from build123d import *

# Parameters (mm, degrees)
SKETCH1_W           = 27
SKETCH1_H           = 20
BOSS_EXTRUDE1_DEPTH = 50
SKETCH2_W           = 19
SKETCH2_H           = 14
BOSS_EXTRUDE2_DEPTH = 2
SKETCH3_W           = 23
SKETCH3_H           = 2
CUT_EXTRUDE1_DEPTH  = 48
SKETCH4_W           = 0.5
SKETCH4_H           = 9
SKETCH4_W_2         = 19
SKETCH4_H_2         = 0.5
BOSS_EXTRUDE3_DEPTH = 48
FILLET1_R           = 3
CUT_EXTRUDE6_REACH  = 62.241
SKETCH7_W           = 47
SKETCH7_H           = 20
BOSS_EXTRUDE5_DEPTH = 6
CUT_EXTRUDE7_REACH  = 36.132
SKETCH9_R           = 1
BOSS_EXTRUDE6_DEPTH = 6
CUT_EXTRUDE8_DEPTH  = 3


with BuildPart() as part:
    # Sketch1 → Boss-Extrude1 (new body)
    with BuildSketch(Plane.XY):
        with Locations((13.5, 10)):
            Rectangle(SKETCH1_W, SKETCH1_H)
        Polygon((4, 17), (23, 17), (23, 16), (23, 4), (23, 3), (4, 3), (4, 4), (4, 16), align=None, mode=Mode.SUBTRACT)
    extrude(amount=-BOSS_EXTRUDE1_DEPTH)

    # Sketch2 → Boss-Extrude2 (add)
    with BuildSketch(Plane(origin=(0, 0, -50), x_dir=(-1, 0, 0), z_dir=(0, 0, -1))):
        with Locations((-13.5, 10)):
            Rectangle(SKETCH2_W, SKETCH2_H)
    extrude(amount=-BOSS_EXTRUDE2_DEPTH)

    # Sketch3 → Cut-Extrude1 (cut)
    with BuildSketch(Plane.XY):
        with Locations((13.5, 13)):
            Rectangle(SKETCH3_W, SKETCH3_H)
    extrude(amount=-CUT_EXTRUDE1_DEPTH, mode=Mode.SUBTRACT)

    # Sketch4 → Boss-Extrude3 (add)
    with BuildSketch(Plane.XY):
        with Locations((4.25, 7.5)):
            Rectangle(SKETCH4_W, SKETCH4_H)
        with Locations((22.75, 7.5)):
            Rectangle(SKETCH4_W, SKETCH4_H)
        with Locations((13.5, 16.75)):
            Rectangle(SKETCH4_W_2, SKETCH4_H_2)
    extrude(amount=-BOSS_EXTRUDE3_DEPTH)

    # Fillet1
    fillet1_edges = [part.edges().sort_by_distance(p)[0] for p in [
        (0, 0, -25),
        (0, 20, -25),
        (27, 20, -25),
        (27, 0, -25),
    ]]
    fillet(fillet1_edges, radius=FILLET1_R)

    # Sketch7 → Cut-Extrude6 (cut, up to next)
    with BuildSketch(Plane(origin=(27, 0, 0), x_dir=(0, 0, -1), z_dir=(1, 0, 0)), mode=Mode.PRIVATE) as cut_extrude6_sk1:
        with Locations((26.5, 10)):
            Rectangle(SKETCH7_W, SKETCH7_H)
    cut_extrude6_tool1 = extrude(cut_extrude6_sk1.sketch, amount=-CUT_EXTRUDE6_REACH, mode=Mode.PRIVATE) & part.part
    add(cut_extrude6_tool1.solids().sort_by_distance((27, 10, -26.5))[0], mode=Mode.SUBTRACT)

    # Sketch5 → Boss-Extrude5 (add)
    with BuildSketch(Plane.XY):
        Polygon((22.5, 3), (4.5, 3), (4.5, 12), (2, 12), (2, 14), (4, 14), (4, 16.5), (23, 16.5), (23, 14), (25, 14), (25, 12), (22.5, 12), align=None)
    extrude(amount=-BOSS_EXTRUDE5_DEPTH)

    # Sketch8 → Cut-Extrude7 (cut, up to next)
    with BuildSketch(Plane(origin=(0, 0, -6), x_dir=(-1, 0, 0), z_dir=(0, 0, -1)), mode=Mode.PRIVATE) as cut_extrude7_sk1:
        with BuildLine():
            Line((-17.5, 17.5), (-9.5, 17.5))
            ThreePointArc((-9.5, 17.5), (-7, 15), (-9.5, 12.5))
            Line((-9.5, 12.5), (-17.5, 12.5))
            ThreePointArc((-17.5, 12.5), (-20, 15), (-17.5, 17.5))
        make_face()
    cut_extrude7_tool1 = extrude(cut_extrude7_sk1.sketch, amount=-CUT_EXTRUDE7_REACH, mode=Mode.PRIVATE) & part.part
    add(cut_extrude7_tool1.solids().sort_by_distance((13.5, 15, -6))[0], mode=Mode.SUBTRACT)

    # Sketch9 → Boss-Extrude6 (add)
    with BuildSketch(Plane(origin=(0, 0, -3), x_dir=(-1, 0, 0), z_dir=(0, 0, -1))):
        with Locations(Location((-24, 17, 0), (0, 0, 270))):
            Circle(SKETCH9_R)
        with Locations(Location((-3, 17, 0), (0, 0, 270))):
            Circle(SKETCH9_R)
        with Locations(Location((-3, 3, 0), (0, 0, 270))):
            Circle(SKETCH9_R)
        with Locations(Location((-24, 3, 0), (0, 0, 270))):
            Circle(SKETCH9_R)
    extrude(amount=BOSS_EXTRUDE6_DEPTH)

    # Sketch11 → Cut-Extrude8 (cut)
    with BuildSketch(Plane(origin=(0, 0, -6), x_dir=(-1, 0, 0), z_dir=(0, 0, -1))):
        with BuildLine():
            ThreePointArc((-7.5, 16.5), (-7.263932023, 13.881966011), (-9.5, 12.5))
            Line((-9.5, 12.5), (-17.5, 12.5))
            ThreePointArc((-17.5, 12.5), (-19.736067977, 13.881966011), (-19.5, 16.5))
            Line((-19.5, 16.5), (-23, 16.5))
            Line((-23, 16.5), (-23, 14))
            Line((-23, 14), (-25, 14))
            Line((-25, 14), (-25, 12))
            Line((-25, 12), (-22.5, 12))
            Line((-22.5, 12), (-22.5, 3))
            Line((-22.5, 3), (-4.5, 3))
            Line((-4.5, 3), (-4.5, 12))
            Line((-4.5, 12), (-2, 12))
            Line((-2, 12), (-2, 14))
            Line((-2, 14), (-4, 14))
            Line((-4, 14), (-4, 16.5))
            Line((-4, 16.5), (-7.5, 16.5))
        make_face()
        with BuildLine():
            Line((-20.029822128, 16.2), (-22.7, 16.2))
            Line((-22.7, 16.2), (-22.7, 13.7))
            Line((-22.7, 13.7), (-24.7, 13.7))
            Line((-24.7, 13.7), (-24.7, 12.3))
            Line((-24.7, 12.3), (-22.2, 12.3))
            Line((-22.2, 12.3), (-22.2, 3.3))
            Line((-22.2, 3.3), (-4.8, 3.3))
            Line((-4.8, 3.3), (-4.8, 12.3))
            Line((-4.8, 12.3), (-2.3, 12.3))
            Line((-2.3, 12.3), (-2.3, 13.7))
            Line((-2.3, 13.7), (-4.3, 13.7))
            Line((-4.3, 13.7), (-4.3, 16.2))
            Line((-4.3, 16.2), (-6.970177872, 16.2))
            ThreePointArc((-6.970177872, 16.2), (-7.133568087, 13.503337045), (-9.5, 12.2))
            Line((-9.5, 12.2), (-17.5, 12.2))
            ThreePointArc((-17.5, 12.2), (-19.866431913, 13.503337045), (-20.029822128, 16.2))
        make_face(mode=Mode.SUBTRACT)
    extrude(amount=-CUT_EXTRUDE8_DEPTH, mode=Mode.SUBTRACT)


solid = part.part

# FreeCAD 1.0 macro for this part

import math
import FreeCAD as App
import Part
import Sketcher

V = App.Vector
Q = App.Units.Quantity


def edges_at(feature, points):
    """Names of the edges that pass closest to the given points."""
    edges = feature.Shape.Edges
    near = lambda p: min(range(len(edges)), key=lambda i: edges[i].distToShape(Part.Vertex(*p))[0])
    return sorted({f"Edge{near(p) + 1}" for p in points})


def add_polygon(sketch, points):
    """Adds a closed chain of lines whose ends are joined by coincident constraints."""
    first, n = sketch.GeometryCount, len(points)
    for a, b in zip(points, points[1:] + points[:1]):
        sketch.addGeometry(Part.LineSegment(App.Vector(*a, 0), App.Vector(*b, 0)), False)
    for i in range(n):
        sketch.addConstraint(Sketcher.Constraint("Coincident", first + i, 2, first + (i + 1) % n, 1))

doc = App.newDocument("Part")
body = doc.addObject("PartDesign::Body", "Body")

# Sketch on XY plane
sketch1 = body.newObject("Sketcher::SketchObject", "Sketch")
sketch1.AttachmentSupport = (doc.getObject("XY_Plane"), [""])
sketch1.MapMode = "FlatFace"
add_polygon(sketch1, [(0, 20), (0, 0), (27, 0), (27, 20)])  # lines 0-3
add_polygon(sketch1, [(4, 3), (4, 17), (23, 17), (23, 3)])  # lines 4-7
sketch1.addConstraint([
    Sketcher.Constraint("Vertical", 0),
    Sketcher.Constraint("Horizontal", 1),
    Sketcher.Constraint("Vertical", 2),
    Sketcher.Constraint("Horizontal", 3),
    Sketcher.Constraint("Vertical", 4),
    Sketcher.Constraint("Horizontal", 5),
    Sketcher.Constraint("Vertical", 6),
    Sketcher.Constraint("Horizontal", 7),
    Sketcher.Constraint("Coincident", 0, 2, -1, 1),
    Sketcher.Constraint("DistanceX", 1, 1, 1, 2, Q("27 mm")),
    Sketcher.Constraint("DistanceX", 5, 1, 5, 2, Q("19 mm")),
    Sketcher.Constraint("DistanceY", 0, 2, 0, 1, Q("20 mm")),
    Sketcher.Constraint("DistanceY", 4, 1, 4, 2, Q("14 mm")),
    Sketcher.Constraint("DistanceX", -1, 1, 4, 2, Q("4 mm")),
    Sketcher.Constraint("DistanceY", -1, 1, 4, 2, Q("17 mm")),
])
pad1 = body.newObject("PartDesign::Pad", "Pad")
pad1.Profile = sketch1
pad1.Length = 50
pad1.Reversed = True

# Sketch on XY plane
sketch2 = body.newObject("Sketcher::SketchObject", "Sketch001")
sketch2.AttachmentSupport = (doc.getObject("XY_Plane"), [""])
sketch2.MapMode = "FlatFace"
sketch2.AttachmentOffset = App.Placement(V(0, 0, -50), App.Rotation())
add_polygon(sketch2, [(23, 17), (23, 3), (4, 3), (4, 17)])  # lines 0-3
sketch2.addConstraint([
    Sketcher.Constraint("Vertical", 0),
    Sketcher.Constraint("Horizontal", 1),
    Sketcher.Constraint("Vertical", 2),
    Sketcher.Constraint("Horizontal", 3),
    Sketcher.Constraint("DistanceX", 1, 2, 1, 1, Q("19 mm")),
    Sketcher.Constraint("DistanceY", 0, 2, 0, 1, Q("14 mm")),
    Sketcher.Constraint("DistanceX", -1, 1, 0, 2, Q("23 mm")),
    Sketcher.Constraint("DistanceY", -1, 1, 0, 2, Q("3 mm")),
])
pad2 = body.newObject("PartDesign::Pad", "Pad001")
pad2.Profile = sketch2
pad2.Length = 2

# Sketch on XY plane
sketch3 = body.newObject("Sketcher::SketchObject", "Sketch002")
sketch3.AttachmentSupport = (doc.getObject("XY_Plane"), [""])
sketch3.MapMode = "FlatFace"
add_polygon(sketch3, [(2, 14), (2, 12), (25, 12), (25, 14)])  # lines 0-3
sketch3.addConstraint([
    Sketcher.Constraint("Vertical", 0),
    Sketcher.Constraint("Horizontal", 1),
    Sketcher.Constraint("Vertical", 2),
    Sketcher.Constraint("Horizontal", 3),
    Sketcher.Constraint("DistanceX", 1, 1, 1, 2, Q("23 mm")),
    Sketcher.Constraint("DistanceY", 0, 2, 0, 1, Q("2 mm")),
    Sketcher.Constraint("DistanceX", -1, 1, 0, 2, Q("2 mm")),
    Sketcher.Constraint("DistanceY", -1, 1, 0, 2, Q("12 mm")),
])
pocket1 = body.newObject("PartDesign::Pocket", "Pocket")
pocket1.Profile = sketch3
pocket1.Length = 48

# Sketch on XY plane
sketch4 = body.newObject("Sketcher::SketchObject", "Sketch003")
sketch4.AttachmentSupport = (doc.getObject("XY_Plane"), [""])
sketch4.MapMode = "FlatFace"
add_polygon(sketch4, [(4, 12), (4, 3), (4.5, 3), (4.5, 12)])  # lines 0-3
add_polygon(sketch4, [(22.5, 12), (22.5, 3), (23, 3), (23, 12)])  # lines 4-7
add_polygon(sketch4, [(4, 17), (4, 16.5), (23, 16.5), (23, 17)])  # lines 8-11
sketch4.addConstraint([
    Sketcher.Constraint("Vertical", 0),
    Sketcher.Constraint("Horizontal", 1),
    Sketcher.Constraint("Vertical", 2),
    Sketcher.Constraint("Horizontal", 3),
    Sketcher.Constraint("Vertical", 4),
    Sketcher.Constraint("Horizontal", 5),
    Sketcher.Constraint("Vertical", 6),
    Sketcher.Constraint("Horizontal", 7),
    Sketcher.Constraint("Vertical", 8),
    Sketcher.Constraint("Horizontal", 9),
    Sketcher.Constraint("Vertical", 10),
    Sketcher.Constraint("Horizontal", 11),
    Sketcher.Constraint("Horizontal", 1, 2, 4, 2),
    Sketcher.Constraint("Horizontal", 3, 2, 6, 2),
    Sketcher.Constraint("Vertical", 3, 2, 8, 2),
    Sketcher.Constraint("Vertical", 6, 2, 9, 2),
    Sketcher.Constraint("Equal", 3, 5),
    Sketcher.Constraint("Equal", 7, 8),
    Sketcher.Constraint("DistanceX", 9, 1, 9, 2, Q("19 mm")),
    Sketcher.Constraint("DistanceY", 0, 2, 0, 1, Q("9 mm")),
    Sketcher.Constraint("DistanceX", 1, 1, 1, 2, Q("0.5 mm")),
    Sketcher.Constraint("DistanceX", -1, 1, 0, 2, Q("4 mm")),
    Sketcher.Constraint("DistanceY", -1, 1, 0, 2, Q("3 mm")),
    Sketcher.Constraint("DistanceY", -1, 1, 10, 2, Q("17 mm")),
])
pad3 = body.newObject("PartDesign::Pad", "Pad002")
pad3.Profile = sketch4
pad3.Length = 48
pad3.Reversed = True
doc.recompute()

fillet = body.newObject("PartDesign::Fillet", "Fillet")
fillet.Base = (pad3, edges_at(pad3, [
    (0, 0, -25),
    (0, 20, -25),
    (27, 20, -25),
    (27, 0, -25),
]))
fillet.Radius = 3

# Sketch on YZ plane
sketch5 = body.newObject("Sketcher::SketchObject", "Sketch004")
sketch5.AttachmentSupport = (doc.getObject("YZ_Plane"), [""])
sketch5.MapMode = "FlatFace"
sketch5.AttachmentOffset = App.Placement(V(0, 0, 27), App.Rotation())
add_polygon(sketch5, [(20, -3), (0, -3), (0, -50), (20, -50)])  # lines 0-3
sketch5.addConstraint([
    Sketcher.Constraint("Horizontal", 0),
    Sketcher.Constraint("Vertical", 1),
    Sketcher.Constraint("Horizontal", 2),
    Sketcher.Constraint("Vertical", 3),
    Sketcher.Constraint("PointOnObject", 0, 2, -2),
    Sketcher.Constraint("DistanceX", 0, 2, 0, 1, Q("20 mm")),
    Sketcher.Constraint("DistanceY", 1, 2, 1, 1, Q("47 mm")),
    Sketcher.Constraint("DistanceY", 0, 2, -1, 1, Q("3 mm")),
])
pocket2 = body.newObject("PartDesign::Pocket", "Pocket001")
pocket2.Profile = sketch5
pocket2.Length = 27

# Sketch on XY plane
sketch6 = body.newObject("Sketcher::SketchObject", "Sketch005")
sketch6.AttachmentSupport = (doc.getObject("XY_Plane"), [""])
sketch6.MapMode = "FlatFace"
add_polygon(sketch6, [(4.5, 3), (22.5, 3), (22.5, 12), (25, 12), (25, 14), (23, 14), (23, 16.5), (4, 16.5), (4, 14), (2, 14), (2, 12), (4.5, 12)])  # lines 0-11
sketch6.addConstraint([
    Sketcher.Constraint("Horizontal", 0),
    Sketcher.Constraint("Vertical", 1),
    Sketcher.Constraint("Horizontal", 2),
    Sketcher.Constraint("Vertical", 3),
    Sketcher.Constraint("Horizontal", 4),
    Sketcher.Constraint("Vertical", 5),
    Sketcher.Constraint("Horizontal", 6),
    Sketcher.Constraint("Vertical", 7),
    Sketcher.Constraint("Horizontal", 8),
    Sketcher.Constraint("Vertical", 9),
    Sketcher.Constraint("Horizontal", 10),
    Sketcher.Constraint("Vertical", 11),
    Sketcher.Constraint("Horizontal", 4, 2, 7, 2),
    Sketcher.Constraint("Horizontal", 2, 2, 9, 2),
    Sketcher.Constraint("Equal", 4, 8),
    Sketcher.Constraint("Equal", 2, 10),
    Sketcher.Constraint("Equal", 8, 3),
    Sketcher.Constraint("Equal", 10, 5),
    Sketcher.Constraint("DistanceX", 0, 1, 0, 2, Q("18 mm")),
    Sketcher.Constraint("DistanceX", 4, 2, 4, 1, Q("2 mm")),
    Sketcher.Constraint("DistanceX", 6, 2, 6, 1, Q("19 mm")),
    Sketcher.Constraint("DistanceY", 1, 1, 1, 2, Q("9 mm")),
    Sketcher.Constraint("DistanceY", -1, 1, 0, 2, Q("3 mm")),
    Sketcher.Constraint("DistanceX", -1, 1, 2, 2, Q("25 mm")),
])
pad4 = body.newObject("PartDesign::Pad", "Pad003")
pad4.Profile = sketch6
pad4.Length = 6
pad4.Reversed = True

# Sketch on XY plane
sketch7 = body.newObject("Sketcher::SketchObject", "Sketch006")
sketch7.AttachmentSupport = (doc.getObject("XY_Plane"), [""])
sketch7.MapMode = "FlatFace"
sketch7.AttachmentOffset = App.Placement(V(0, 0, -6), App.Rotation())
sketch7.addGeometry([
    Part.LineSegment(V(9.5, 17.5, 0), V(17.5, 17.5, 0)),
    Part.ArcOfCircle(Part.Circle(V(17.5, 15, 0), V(0, 0, 1), 2.5), math.radians(-90), math.radians(90)),
    Part.LineSegment(V(17.5, 12.5, 0), V(9.5, 12.5, 0)),
    Part.ArcOfCircle(Part.Circle(V(9.5, 15, 0), V(0, 0, 1), 2.5), math.radians(90), math.radians(270)),
], False)
sketch7.addConstraint([
    Sketcher.Constraint("Tangent", 0, 2, 1, 2),
    Sketcher.Constraint("Tangent", 1, 1, 2, 1),
    Sketcher.Constraint("Tangent", 2, 2, 3, 2),
    Sketcher.Constraint("Tangent", 3, 1, 0, 1),
    Sketcher.Constraint("Horizontal", 0),
    Sketcher.Constraint("Horizontal", 2),
    Sketcher.Constraint("Radius", 1, Q("2.5 mm")),
    Sketcher.Constraint("DistanceX", 0, 1, 0, 2, Q("8 mm")),
    Sketcher.Constraint("DistanceY", -1, 1, 1, 3, Q("15 mm")),
    Sketcher.Constraint("DistanceX", -1, 1, 1, 3, Q("17.5 mm")),
])
pocket3 = body.newObject("PartDesign::Pocket", "Pocket002")
pocket3.Profile = sketch7
pocket3.Type = "UpToFirst"
pocket3.Reversed = True

# Sketch on XY plane
sketch8 = body.newObject("Sketcher::SketchObject", "Sketch007")
sketch8.AttachmentSupport = (doc.getObject("XY_Plane"), [""])
sketch8.MapMode = "FlatFace"
sketch8.AttachmentOffset = App.Placement(V(0, 0, -3), App.Rotation())
sketch8.addGeometry([
    Part.Circle(V(24, 17, 0), V(0, 0, 1), 1),
    Part.Circle(V(3, 17, 0), V(0, 0, 1), 1),
    Part.Circle(V(3, 3, 0), V(0, 0, 1), 1),
    Part.Circle(V(24, 3, 0), V(0, 0, 1), 1),
], False)
sketch8.addConstraint([
    Sketcher.Constraint("Equal", 0, 1),
    Sketcher.Constraint("Equal", 1, 2),
    Sketcher.Constraint("Equal", 2, 3),
    Sketcher.Constraint("Horizontal", 0, 3, 1, 3),
    Sketcher.Constraint("Horizontal", 2, 3, 3, 3),
    Sketcher.Constraint("Vertical", 1, 3, 2, 3),
    Sketcher.Constraint("Vertical", 0, 3, 3, 3),
    Sketcher.Constraint("Diameter", 0, Q("2 mm")),
    Sketcher.Constraint("DistanceX", -1, 1, 0, 3, Q("24 mm")),
    Sketcher.Constraint("DistanceY", -1, 1, 0, 3, Q("17 mm")),
    Sketcher.Constraint("DistanceX", -1, 1, 1, 3, Q("3 mm")),
    Sketcher.Constraint("DistanceY", -1, 1, 2, 3, Q("3 mm")),
])
pad5 = body.newObject("PartDesign::Pad", "Pad004")
pad5.Profile = sketch8
pad5.Length = 6
pad5.Reversed = True

# Sketch on XY plane
sketch9 = body.newObject("Sketcher::SketchObject", "Sketch008")
sketch9.AttachmentSupport = (doc.getObject("XY_Plane"), [""])
sketch9.MapMode = "FlatFace"
sketch9.AttachmentOffset = App.Placement(V(0, 0, -6), App.Rotation())
sketch9.addGeometry([
    Part.ArcOfCircle(Part.Circle(V(9.5, 15, 0), V(0, 0, 1), 2.5), math.radians(143.130102), math.radians(270)),  # 0
    Part.LineSegment(V(9.5, 12.5, 0), V(17.5, 12.5, 0)),  # 1
    Part.ArcOfCircle(Part.Circle(V(17.5, 15, 0), V(0, 0, 1), 2.5), math.radians(-90), math.radians(36.869898)),  # 2
    Part.LineSegment(V(19.5, 16.5, 0), V(23, 16.5, 0)),  # 3
    Part.LineSegment(V(23, 16.5, 0), V(23, 14, 0)),  # 4
    Part.LineSegment(V(23, 14, 0), V(25, 14, 0)),  # 5
    Part.LineSegment(V(25, 14, 0), V(25, 12, 0)),  # 6
    Part.LineSegment(V(25, 12, 0), V(22.5, 12, 0)),  # 7
    Part.LineSegment(V(22.5, 12, 0), V(22.5, 3, 0)),  # 8
    Part.LineSegment(V(22.5, 3, 0), V(4.5, 3, 0)),  # 9
    Part.LineSegment(V(4.5, 3, 0), V(4.5, 12, 0)),  # 10
    Part.LineSegment(V(4.5, 12, 0), V(2, 12, 0)),  # 11
    Part.LineSegment(V(2, 12, 0), V(2, 14, 0)),  # 12
    Part.LineSegment(V(2, 14, 0), V(4, 14, 0)),  # 13
    Part.LineSegment(V(4, 14, 0), V(4, 16.5, 0)),  # 14
    Part.LineSegment(V(4, 16.5, 0), V(7.5, 16.5, 0)),  # 15
    Part.LineSegment(V(22.7, 16.2, 0), V(20.029822, 16.2, 0)),  # 16
    Part.ArcOfCircle(Part.Circle(V(17.5, 15, 0), V(0, 0, 1), 2.8), math.radians(-90), math.radians(25.376934)),  # 17
    Part.LineSegment(V(17.5, 12.2, 0), V(9.5, 12.2, 0)),  # 18
    Part.ArcOfCircle(Part.Circle(V(9.5, 15, 0), V(0, 0, 1), 2.8), math.radians(154.623066), math.radians(270)),  # 19
    Part.LineSegment(V(6.970178, 16.2, 0), V(4.3, 16.2, 0)),  # 20
    Part.LineSegment(V(4.3, 16.2, 0), V(4.3, 13.7, 0)),  # 21
    Part.LineSegment(V(4.3, 13.7, 0), V(2.3, 13.7, 0)),  # 22
    Part.LineSegment(V(2.3, 13.7, 0), V(2.3, 12.3, 0)),  # 23
    Part.LineSegment(V(2.3, 12.3, 0), V(4.8, 12.3, 0)),  # 24
    Part.LineSegment(V(4.8, 12.3, 0), V(4.8, 3.3, 0)),  # 25
    Part.LineSegment(V(4.8, 3.3, 0), V(22.2, 3.3, 0)),  # 26
    Part.LineSegment(V(22.2, 3.3, 0), V(22.2, 12.3, 0)),  # 27
    Part.LineSegment(V(22.2, 12.3, 0), V(24.7, 12.3, 0)),  # 28
    Part.LineSegment(V(24.7, 12.3, 0), V(24.7, 13.7, 0)),  # 29
    Part.LineSegment(V(24.7, 13.7, 0), V(22.7, 13.7, 0)),  # 30
    Part.LineSegment(V(22.7, 13.7, 0), V(22.7, 16.2, 0)),  # 31
], False)
sketch9.addConstraint([
    Sketcher.Constraint("Tangent", 0, 2, 1, 1),
    Sketcher.Constraint("Tangent", 1, 2, 2, 1),
    Sketcher.Constraint("Coincident", 2, 2, 3, 1),
    Sketcher.Constraint("Coincident", 3, 2, 4, 1),
    Sketcher.Constraint("Coincident", 4, 2, 5, 1),
    Sketcher.Constraint("Coincident", 5, 2, 6, 1),
    Sketcher.Constraint("Coincident", 6, 2, 7, 1),
    Sketcher.Constraint("Coincident", 7, 2, 8, 1),
    Sketcher.Constraint("Coincident", 8, 2, 9, 1),
    Sketcher.Constraint("Coincident", 9, 2, 10, 1),
    Sketcher.Constraint("Coincident", 10, 2, 11, 1),
    Sketcher.Constraint("Coincident", 11, 2, 12, 1),
    Sketcher.Constraint("Coincident", 12, 2, 13, 1),
    Sketcher.Constraint("Coincident", 13, 2, 14, 1),
    Sketcher.Constraint("Coincident", 14, 2, 15, 1),
    Sketcher.Constraint("Coincident", 15, 2, 0, 1),
    Sketcher.Constraint("Coincident", 16, 2, 17, 2),
    Sketcher.Constraint("Tangent", 17, 1, 18, 1),
    Sketcher.Constraint("Tangent", 18, 2, 19, 2),
    Sketcher.Constraint("Coincident", 19, 1, 20, 1),
    Sketcher.Constraint("Coincident", 20, 2, 21, 1),
    Sketcher.Constraint("Coincident", 21, 2, 22, 1),
    Sketcher.Constraint("Coincident", 22, 2, 23, 1),
    Sketcher.Constraint("Coincident", 23, 2, 24, 1),
    Sketcher.Constraint("Coincident", 24, 2, 25, 1),
    Sketcher.Constraint("Coincident", 25, 2, 26, 1),
    Sketcher.Constraint("Coincident", 26, 2, 27, 1),
    Sketcher.Constraint("Coincident", 27, 2, 28, 1),
    Sketcher.Constraint("Coincident", 28, 2, 29, 1),
    Sketcher.Constraint("Coincident", 29, 2, 30, 1),
    Sketcher.Constraint("Coincident", 30, 2, 31, 1),
    Sketcher.Constraint("Coincident", 31, 2, 16, 1),
    Sketcher.Constraint("Horizontal", 1),
    Sketcher.Constraint("Horizontal", 3),
    Sketcher.Constraint("Vertical", 4),
    Sketcher.Constraint("Horizontal", 5),
    Sketcher.Constraint("Vertical", 6),
    Sketcher.Constraint("Horizontal", 7),
    Sketcher.Constraint("Vertical", 8),
    Sketcher.Constraint("Horizontal", 9),
    Sketcher.Constraint("Vertical", 10),
    Sketcher.Constraint("Horizontal", 11),
    Sketcher.Constraint("Vertical", 12),
    Sketcher.Constraint("Horizontal", 13),
    Sketcher.Constraint("Vertical", 14),
    Sketcher.Constraint("Horizontal", 15),
    Sketcher.Constraint("Horizontal", 16),
    Sketcher.Constraint("Horizontal", 18),
    Sketcher.Constraint("Horizontal", 20),
    Sketcher.Constraint("Vertical", 21),
    Sketcher.Constraint("Horizontal", 22),
    Sketcher.Constraint("Vertical", 23),
    Sketcher.Constraint("Horizontal", 24),
    Sketcher.Constraint("Vertical", 25),
    Sketcher.Constraint("Horizontal", 26),
    Sketcher.Constraint("Vertical", 27),
    Sketcher.Constraint("Horizontal", 28),
    Sketcher.Constraint("Vertical", 29),
    Sketcher.Constraint("Horizontal", 30),
    Sketcher.Constraint("Vertical", 31),
    Sketcher.Constraint("Coincident", 17, 3, 2, 3),
    Sketcher.Constraint("Coincident", 19, 3, 0, 3),
    Sketcher.Constraint("Equal", 0, 2),
    Sketcher.Constraint("Horizontal", 7, 2, 10, 2),
    Sketcher.Constraint("Horizontal", 5, 2, 12, 2),
    Sketcher.Constraint("Horizontal", 3, 2, 14, 2),
    Sketcher.Constraint("Horizontal", 16, 2, 19, 1),
    Sketcher.Constraint("Horizontal", 24, 2, 27, 2),
    Sketcher.Constraint("Horizontal", 22, 2, 29, 2),
    Sketcher.Constraint("Equal", 7, 11),
    Sketcher.Constraint("Equal", 5, 13),
    Sketcher.Constraint("Equal", 3, 15),
    Sketcher.Constraint("Equal", 16, 20),
    Sketcher.Constraint("Equal", 13, 22),
    Sketcher.Constraint("Equal", 11, 24),
    Sketcher.Constraint("Equal", 24, 28),
    Sketcher.Constraint("Equal", 22, 30),
    Sketcher.Constraint("Equal", 28, 4),
    Sketcher.Constraint("Equal", 30, 6),
    Sketcher.Constraint("Equal", 14, 21),
    Sketcher.Constraint("Equal", 10, 25),
    Sketcher.Constraint("Radius", 0, Q("2.5 mm")),
    Sketcher.Constraint("Radius", 17, Q("2.8 mm")),
    Sketcher.Constraint("DistanceX", 1, 1, 1, 2, Q("8 mm")),
    Sketcher.Constraint("DistanceX", 5, 1, 5, 2, Q("2 mm")),
    Sketcher.Constraint("DistanceX", 9, 2, 9, 1, Q("18 mm")),
    Sketcher.Constraint("DistanceY", 8, 2, 8, 1, Q("9 mm")),
    Sketcher.Constraint("DistanceX", 3, 1, 3, 2, Q("3.5 mm")),
    Sketcher.Constraint("DistanceX", 7, 2, 7, 1, Q("2.5 mm")),
    Sketcher.Constraint("DistanceX", 26, 1, 26, 2, Q("17.4 mm")),
    Sketcher.Constraint("DistanceY", 23, 2, 23, 1, Q("1.4 mm")),
    Sketcher.Constraint("DistanceY", -1, 1, 0, 3, Q("15 mm")),
    Sketcher.Constraint("DistanceX", -1, 1, 3, 2, Q("23 mm")),
    Sketcher.Constraint("DistanceY", 17, 1, 16, 2, Q("4 mm")),
])
pocket4 = body.newObject("PartDesign::Pocket", "Pocket003")
pocket4.Profile = sketch9
pocket4.Length = 3
pocket4.Reversed = True

doc.recompute()
